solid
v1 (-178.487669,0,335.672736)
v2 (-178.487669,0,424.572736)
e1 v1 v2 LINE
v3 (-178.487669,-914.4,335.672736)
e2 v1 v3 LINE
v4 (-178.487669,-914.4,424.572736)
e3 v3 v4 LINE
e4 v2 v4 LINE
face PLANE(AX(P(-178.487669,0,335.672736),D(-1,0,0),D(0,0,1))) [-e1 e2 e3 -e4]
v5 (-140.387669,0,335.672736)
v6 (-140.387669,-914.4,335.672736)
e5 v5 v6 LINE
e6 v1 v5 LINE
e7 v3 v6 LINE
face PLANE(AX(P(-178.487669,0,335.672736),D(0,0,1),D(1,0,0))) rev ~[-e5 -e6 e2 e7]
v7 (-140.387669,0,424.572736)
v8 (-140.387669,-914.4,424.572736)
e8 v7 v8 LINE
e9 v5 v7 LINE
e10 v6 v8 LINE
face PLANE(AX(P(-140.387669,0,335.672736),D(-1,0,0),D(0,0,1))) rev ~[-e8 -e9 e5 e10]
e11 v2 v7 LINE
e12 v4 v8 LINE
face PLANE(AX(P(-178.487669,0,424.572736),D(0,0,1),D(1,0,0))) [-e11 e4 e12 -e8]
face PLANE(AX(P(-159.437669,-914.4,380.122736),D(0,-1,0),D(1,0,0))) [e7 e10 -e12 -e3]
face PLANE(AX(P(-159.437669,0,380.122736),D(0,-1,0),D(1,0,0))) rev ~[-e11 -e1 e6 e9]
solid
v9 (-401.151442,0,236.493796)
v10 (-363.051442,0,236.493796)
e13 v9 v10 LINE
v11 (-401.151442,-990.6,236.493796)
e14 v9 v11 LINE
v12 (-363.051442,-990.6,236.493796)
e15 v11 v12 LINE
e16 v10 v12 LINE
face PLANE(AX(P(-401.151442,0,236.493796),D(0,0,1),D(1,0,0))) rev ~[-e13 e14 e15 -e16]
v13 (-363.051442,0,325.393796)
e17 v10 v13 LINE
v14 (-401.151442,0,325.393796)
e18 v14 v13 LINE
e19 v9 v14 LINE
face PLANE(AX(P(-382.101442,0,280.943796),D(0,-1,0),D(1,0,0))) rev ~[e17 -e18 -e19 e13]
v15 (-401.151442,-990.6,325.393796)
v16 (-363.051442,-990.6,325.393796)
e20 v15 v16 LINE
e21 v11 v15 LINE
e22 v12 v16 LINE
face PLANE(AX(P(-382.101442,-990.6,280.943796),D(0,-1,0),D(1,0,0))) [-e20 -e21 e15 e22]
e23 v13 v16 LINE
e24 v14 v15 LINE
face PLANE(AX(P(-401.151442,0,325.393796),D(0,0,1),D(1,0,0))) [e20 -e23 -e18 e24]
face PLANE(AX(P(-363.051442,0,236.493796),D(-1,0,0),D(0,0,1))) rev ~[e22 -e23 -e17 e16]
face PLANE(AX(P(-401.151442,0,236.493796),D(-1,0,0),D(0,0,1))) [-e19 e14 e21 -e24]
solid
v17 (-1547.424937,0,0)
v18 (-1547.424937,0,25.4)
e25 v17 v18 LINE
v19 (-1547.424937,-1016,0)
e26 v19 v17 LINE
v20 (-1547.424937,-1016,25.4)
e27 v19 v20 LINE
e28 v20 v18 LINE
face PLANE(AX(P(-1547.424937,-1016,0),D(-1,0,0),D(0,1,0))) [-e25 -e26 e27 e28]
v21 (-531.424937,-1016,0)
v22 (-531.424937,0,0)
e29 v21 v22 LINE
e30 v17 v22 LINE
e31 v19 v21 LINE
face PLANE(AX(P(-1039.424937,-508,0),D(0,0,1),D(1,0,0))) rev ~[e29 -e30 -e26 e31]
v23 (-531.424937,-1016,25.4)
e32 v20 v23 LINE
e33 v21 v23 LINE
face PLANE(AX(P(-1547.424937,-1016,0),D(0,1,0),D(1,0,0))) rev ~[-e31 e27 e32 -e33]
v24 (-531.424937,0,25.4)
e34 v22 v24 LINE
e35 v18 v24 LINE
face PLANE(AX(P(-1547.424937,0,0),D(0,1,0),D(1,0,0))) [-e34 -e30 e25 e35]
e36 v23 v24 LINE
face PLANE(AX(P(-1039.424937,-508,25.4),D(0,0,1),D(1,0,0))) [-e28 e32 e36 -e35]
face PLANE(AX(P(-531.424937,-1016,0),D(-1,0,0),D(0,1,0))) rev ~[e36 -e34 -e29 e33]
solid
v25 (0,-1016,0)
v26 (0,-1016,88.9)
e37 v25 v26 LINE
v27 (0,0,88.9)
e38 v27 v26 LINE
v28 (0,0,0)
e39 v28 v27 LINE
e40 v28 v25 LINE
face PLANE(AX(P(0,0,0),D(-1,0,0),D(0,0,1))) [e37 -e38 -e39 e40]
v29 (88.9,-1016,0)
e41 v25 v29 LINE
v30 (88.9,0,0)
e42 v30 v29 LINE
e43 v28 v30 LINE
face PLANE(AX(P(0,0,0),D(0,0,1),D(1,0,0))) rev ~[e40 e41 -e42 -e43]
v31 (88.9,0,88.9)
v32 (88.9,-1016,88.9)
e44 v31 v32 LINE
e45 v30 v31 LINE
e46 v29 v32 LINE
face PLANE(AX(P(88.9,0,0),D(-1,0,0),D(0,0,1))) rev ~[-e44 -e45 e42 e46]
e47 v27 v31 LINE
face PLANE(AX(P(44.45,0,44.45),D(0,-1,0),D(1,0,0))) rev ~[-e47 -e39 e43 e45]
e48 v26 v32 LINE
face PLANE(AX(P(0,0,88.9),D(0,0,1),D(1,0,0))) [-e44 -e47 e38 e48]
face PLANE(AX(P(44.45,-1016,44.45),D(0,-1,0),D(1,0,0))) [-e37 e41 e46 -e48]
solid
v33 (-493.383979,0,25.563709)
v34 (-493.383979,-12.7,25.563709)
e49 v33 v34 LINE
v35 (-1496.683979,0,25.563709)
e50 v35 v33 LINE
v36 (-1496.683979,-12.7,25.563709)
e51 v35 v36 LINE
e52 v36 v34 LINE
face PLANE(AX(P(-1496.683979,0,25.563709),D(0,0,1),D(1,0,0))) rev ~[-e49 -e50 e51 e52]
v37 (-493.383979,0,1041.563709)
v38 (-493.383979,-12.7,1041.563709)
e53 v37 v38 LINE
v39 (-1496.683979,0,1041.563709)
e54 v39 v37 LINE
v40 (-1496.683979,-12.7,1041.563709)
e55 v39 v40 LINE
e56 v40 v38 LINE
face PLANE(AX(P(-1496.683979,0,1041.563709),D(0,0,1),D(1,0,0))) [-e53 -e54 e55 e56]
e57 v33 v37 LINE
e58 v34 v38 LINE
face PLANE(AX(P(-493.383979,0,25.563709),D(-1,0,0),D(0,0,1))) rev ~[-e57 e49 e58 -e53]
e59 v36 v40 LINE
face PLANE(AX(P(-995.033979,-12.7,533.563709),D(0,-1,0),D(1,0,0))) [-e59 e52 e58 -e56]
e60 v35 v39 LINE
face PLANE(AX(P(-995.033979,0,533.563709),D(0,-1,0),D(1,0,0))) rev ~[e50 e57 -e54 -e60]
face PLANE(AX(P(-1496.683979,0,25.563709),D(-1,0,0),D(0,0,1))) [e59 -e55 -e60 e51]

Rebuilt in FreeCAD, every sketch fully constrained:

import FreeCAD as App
import Part
import Sketcher
from FreeCAD import Vector
Q = App.Units.Quantity

doc = App.newDocument("Part")
body = doc.addObject("PartDesign::Body", "Body")

sketch1 = body.newObject("Sketcher::SketchObject", "Sketch")
sketch1.AttachmentSupport = (doc.getObject("XZ_Plane"), [""])
sketch1.MapMode = "FlatFace"
sketch1.addGeometry([
    Part.LineSegment(Vector(0, 88.9, 0), Vector(0, 0, 0)),
    Part.LineSegment(Vector(0, 0, 0), Vector(88.9, 0, 0)),
    Part.LineSegment(Vector(88.9, 0, 0), Vector(88.9, 88.9, 0)),
    Part.LineSegment(Vector(88.9, 88.9, 0), Vector(0, 88.9, 0)),
], False)
sketch1.addConstraint([
    Sketcher.Constraint("Coincident", 0, 2, 1, 1),
    Sketcher.Constraint("Coincident", 1, 2, 2, 1),
    Sketcher.Constraint("Coincident", 2, 2, 3, 1),
    Sketcher.Constraint("Coincident", 3, 2, 0, 1),
    Sketcher.Constraint("Vertical", 0),
    Sketcher.Constraint("Horizontal", 1),
    Sketcher.Constraint("Vertical", 2),
    Sketcher.Constraint("Horizontal", 3),
    Sketcher.Constraint("Coincident", 0, 2, -1, 1),
    Sketcher.Constraint("Equal", 3, 0),
    Sketcher.Constraint("DistanceX", 1, 1, 1, 2, Q("3.5 in")),
])
pad1 = body.newObject("PartDesign::Pad", "Pad")
pad1.Profile = sketch1
pad1.Length = Q("40 in")
body2 = doc.addObject("PartDesign::Body", "Body001")

sketch2 = body2.newObject("Sketcher::SketchObject", "Sketch001")
sketch2.AttachmentSupport = (doc.getObject("XY_Plane001"), [""])
sketch2.MapMode = "FlatFace"
sketch2.addGeometry([
    Part.LineSegment(Vector(-1547.424937, 0, 0), Vector(-1547.424937, -1016, 0)),
    Part.LineSegment(Vector(-1547.424937, -1016, 0), Vector(-531.424937, -1016, 0)),
    Part.LineSegment(Vector(-531.424937, -1016, 0), Vector(-531.424937, 0, 0)),
    Part.LineSegment(Vector(-531.424937, 0, 0), Vector(-1547.424937, 0, 0)),
], False)
sketch2.addConstraint([
    Sketcher.Constraint("Coincident", 0, 2, 1, 1),
    Sketcher.Constraint("Coincident", 1, 2, 2, 1),
    Sketcher.Constraint("Coincident", 2, 2, 3, 1),
    Sketcher.Constraint("Coincident", 3, 2, 0, 1),
    Sketcher.Constraint("Vertical", 0),
    Sketcher.Constraint("Horizontal", 1),
    Sketcher.Constraint("Vertical", 2),
    Sketcher.Constraint("Horizontal", 3),
    Sketcher.Constraint("PointOnObject", 2, 2, -1),
    Sketcher.Constraint("Equal", 3, 0),
    Sketcher.Constraint("DistanceX", 1, 1, 1, 2, Q("40 in")),
    Sketcher.Constraint("DistanceX", 0, 2, -1, 1, Q("1547.424937 mm")),
])
pad2 = body2.newObject("PartDesign::Pad", "Pad001")
pad2.Profile = sketch2
pad2.Length = Q("1 in")
body3 = doc.addObject("PartDesign::Body", "Body002")

sketch3 = body3.newObject("Sketcher::SketchObject", "Sketch002")
sketch3.AttachmentSupport = (doc.getObject("XZ_Plane002"), [""])
sketch3.MapMode = "FlatFace"
sketch3.addGeometry([
    Part.LineSegment(Vector(-401.151442, 325.393796, 0), Vector(-401.151442, 236.493796, 0)),
    Part.LineSegment(Vector(-401.151442, 236.493796, 0), Vector(-363.051442, 236.493796, 0)),
    Part.LineSegment(Vector(-363.051442, 236.493796, 0), Vector(-363.051442, 325.393796, 0)),
    Part.LineSegment(Vector(-363.051442, 325.393796, 0), Vector(-401.151442, 325.393796, 0)),
], False)
sketch3.addConstraint([
    Sketcher.Constraint("Coincident", 0, 2, 1, 1),
    Sketcher.Constraint("Coincident", 1, 2, 2, 1),
    Sketcher.Constraint("Coincident", 2, 2, 3, 1),
    Sketcher.Constraint("Coincident", 3, 2, 0, 1),
    Sketcher.Constraint("Vertical", 0),
    Sketcher.Constraint("Horizontal", 1),
    Sketcher.Constraint("Vertical", 2),
    Sketcher.Constraint("Horizontal", 3),
    Sketcher.Constraint("DistanceX", 1, 1, 1, 2, Q("1.5 in")),
    Sketcher.Constraint("DistanceY", 0, 2, 0, 1, Q("3.5 in")),
    Sketcher.Constraint("DistanceX", 0, 2, -1, 1, Q("401.151442 mm")),
    Sketcher.Constraint("DistanceY", -1, 1, 0, 2, Q("236.493796 mm")),
])
pad3 = body3.newObject("PartDesign::Pad", "Pad002")
pad3.Profile = sketch3
pad3.Length = Q("39 in")
body4 = doc.addObject("PartDesign::Body", "Body003")

sketch4 = body4.newObject("Sketcher::SketchObject", "Sketch003")
sketch4.AttachmentSupport = (doc.getObject("XZ_Plane003"), [""])
sketch4.MapMode = "FlatFace"
sketch4.addGeometry([
    Part.LineSegment(Vector(-1496.683979, 1041.563709, 0), Vector(-1496.683979, 25.563709, 0)),
    Part.LineSegment(Vector(-1496.683979, 25.563709, 0), Vector(-493.383979, 25.563709, 0)),
    Part.LineSegment(Vector(-493.383979, 25.563709, 0), Vector(-493.383979, 1041.563709, 0)),
    Part.LineSegment(Vector(-493.383979, 1041.563709, 0), Vector(-1496.683979, 1041.563709, 0)),
], False)
sketch4.addConstraint([
    Sketcher.Constraint("Coincident", 0, 2, 1, 1),
    Sketcher.Constraint("Coincident", 1, 2, 2, 1),
    Sketcher.Constraint("Coincident", 2, 2, 3, 1),
    Sketcher.Constraint("Coincident", 3, 2, 0, 1),
    Sketcher.Constraint("Vertical", 0),
    Sketcher.Constraint("Horizontal", 1),
    Sketcher.Constraint("Vertical", 2),
    Sketcher.Constraint("Horizontal", 3),
    Sketcher.Constraint("DistanceY", 0, 2, 0, 1, Q("40 in")),
    Sketcher.Constraint("DistanceX", 1, 1, 1, 2, Q("39.5 in")),
    Sketcher.Constraint("DistanceX", 0, 2, -1, 1, Q("1496.683979 mm")),
    Sketcher.Constraint("DistanceY", -1, 1, 0, 2, Q("25.563709 mm")),
])
pad4 = body4.newObject("PartDesign::Pad", "Pad003")
pad4.Profile = sketch4
pad4.Length = Q("0.5 in")
body5 = doc.addObject("PartDesign::Body", "Body004")

sketch5 = body5.newObject("Sketcher::SketchObject", "Sketch004")
sketch5.AttachmentSupport = (doc.getObject("XZ_Plane004"), [""])
sketch5.MapMode = "FlatFace"
sketch5.addGeometry([
    Part.LineSegment(Vector(-178.487669, 424.572736, 0), Vector(-178.487669, 335.672736, 0)),
    Part.LineSegment(Vector(-178.487669, 335.672736, 0), Vector(-140.387669, 335.672736, 0)),
    Part.LineSegment(Vector(-140.387669, 335.672736, 0), Vector(-140.387669, 424.572736, 0)),
    Part.LineSegment(Vector(-140.387669, 424.572736, 0), Vector(-178.487669, 424.572736, 0)),
], False)
sketch5.addConstraint([
    Sketcher.Constraint("Coincident", 0, 2, 1, 1),
    Sketcher.Constraint("Coincident", 1, 2, 2, 1),
    Sketcher.Constraint("Coincident", 2, 2, 3, 1),
    Sketcher.Constraint("Coincident", 3, 2, 0, 1),
    Sketcher.Constraint("Vertical", 0),
    Sketcher.Constraint("Horizontal", 1),
    Sketcher.Constraint("Vertical", 2),
    Sketcher.Constraint("Horizontal", 3),
    Sketcher.Constraint("DistanceX", 1, 1, 1, 2, Q("1.5 in")),
    Sketcher.Constraint("DistanceY", 0, 2, 0, 1, Q("3.5 in")),
    Sketcher.Constraint("DistanceX", 0, 2, -1, 1, Q("178.487669 mm")),
    Sketcher.Constraint("DistanceY", -1, 1, 0, 2, Q("335.672736 mm")),
])
pad5 = body5.newObject("PartDesign::Pad", "Pad004")
pad5.Profile = sketch5
pad5.Length = Q("36 in")

doc.recompute()
